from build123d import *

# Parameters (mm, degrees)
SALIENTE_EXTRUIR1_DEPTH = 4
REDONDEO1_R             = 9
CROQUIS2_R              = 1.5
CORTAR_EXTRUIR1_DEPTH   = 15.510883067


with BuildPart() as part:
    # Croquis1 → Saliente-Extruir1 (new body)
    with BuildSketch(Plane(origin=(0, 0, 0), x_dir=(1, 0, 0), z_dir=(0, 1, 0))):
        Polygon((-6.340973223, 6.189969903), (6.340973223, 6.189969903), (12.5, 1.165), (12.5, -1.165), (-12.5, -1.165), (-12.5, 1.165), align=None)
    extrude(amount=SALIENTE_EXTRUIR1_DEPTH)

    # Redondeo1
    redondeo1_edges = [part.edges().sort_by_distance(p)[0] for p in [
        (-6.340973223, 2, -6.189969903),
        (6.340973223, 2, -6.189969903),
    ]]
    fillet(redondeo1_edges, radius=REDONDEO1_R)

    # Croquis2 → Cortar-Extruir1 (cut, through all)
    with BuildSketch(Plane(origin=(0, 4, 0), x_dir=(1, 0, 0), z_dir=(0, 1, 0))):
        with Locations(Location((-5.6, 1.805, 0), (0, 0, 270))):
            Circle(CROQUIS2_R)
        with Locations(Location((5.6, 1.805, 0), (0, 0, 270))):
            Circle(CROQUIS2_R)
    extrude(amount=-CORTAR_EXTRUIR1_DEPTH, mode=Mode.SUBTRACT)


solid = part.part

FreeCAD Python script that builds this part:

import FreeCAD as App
import Part
import Sketcher
Q = App.Units.Quantity


def edges_at(feature, points):
    """Names of the edges that pass closest to the given points."""
    edges = feature.Shape.Edges
    near = lambda p: min(range(len(edges)), key=lambda i: edges[i].distToShape(Part.Vertex(*p))[0])
    return sorted({f"Edge{near(p) + 1}" for p in points})


def add_polygon(sketch, points):
    """Adds a closed chain of lines whose ends are joined by coincident constraints."""
    first, n = sketch.GeometryCount, len(points)
    for a, b in zip(points, points[1:] + points[:1]):
        sketch.addGeometry(Part.LineSegment(App.Vector(*a, 0), App.Vector(*b, 0)), False)
    for i in range(n):
        sketch.addConstraint(Sketcher.Constraint("Coincident", first + i, 2, first + (i + 1) % n, 1))

doc = App.newDocument("Part")
body = doc.addObject("PartDesign::Body", "Body")

# Sketch on XZ plane
sketch1 = body.newObject("Sketcher::SketchObject", "Sketch")
sketch1.AttachmentSupport = (doc.getObject("XZ_Plane"), [""])
sketch1.MapMode = "FlatFace"
add_polygon(sketch1, [(6.3, -6.2), (-6.3, -6.2), (-12.5, -1.2), (-12.5, 1.2), (12.5, 1.2), (12.5, -1.2)])  # lines 0-5
sketch1.addConstraint(Sketcher.Constraint("Horizontal", 0))
sketch1.addConstraint(Sketcher.Constraint("Vertical", 2))
sketch1.addConstraint(Sketcher.Constraint("Horizontal", 3))
sketch1.addConstraint(Sketcher.Constraint("Vertical", 4))
sketch1.addConstraint(Sketcher.Constraint("Symmetric", 1, 2, 3, 2, -1, 1))
sketch1.addConstraint(Sketcher.Constraint("Horizontal", 1, 2, 4, 2))
sketch1.addConstraint(Sketcher.Constraint("Equal", 1, 5))
sketch1.addConstraint(Sketcher.Constraint("DistanceX", 3, 1, 3, 2, Q("25 mm")))
sketch1.addConstraint(Sketcher.Constraint("DistanceY", 2, 1, 2, 2, Q("2.33 mm")))
sketch1.addConstraint(Sketcher.Constraint("Angle", 1, Q("140.79 deg")))
sketch1.addConstraint(Sketcher.Constraint("DistanceX", 0, 2, 0, 1, Q("12.681946 mm")))
pad1 = body.newObject("PartDesign::Pad", "Pad")
pad1.Profile = sketch1
pad1.Length = 4
pad1.Reversed = True
doc.recompute()

fillet = body.newObject("PartDesign::Fillet", "Fillet")
fillet.Base = (pad1, edges_at(pad1, [(-6.341, 2, -6.19), (6.341, 2, -6.19)]))
fillet.Radius = 9

# Sketch on XZ plane
sketch2 = body.newObject("Sketcher::SketchObject", "Sketch001")
sketch2.AttachmentSupport = (doc.getObject("XZ_Plane"), [""])
sketch2.MapMode = "FlatFace"
sketch2.AttachmentOffset = App.Placement(App.Vector(0, 0, -4), App.Rotation())
sketch2.addGeometry(Part.Circle(App.Vector(-5.6, -1.8, 0), App.Vector(0, 0, 1), 1.5), False)
sketch2.addGeometry(Part.Circle(App.Vector(5.6, -1.8, 0), App.Vector(0, 0, 1), 1.5), False)
sketch2.addConstraint(Sketcher.Constraint("Equal", 0, 1))
sketch2.addConstraint(Sketcher.Constraint("Symmetric", 0, 3, 1, 3, -2))
sketch2.addConstraint(Sketcher.Constraint("Diameter", 0, Q("3 mm")))
sketch2.addConstraint(Sketcher.Constraint("DistanceX", 0, 3, -1, 1, Q("5.6 mm")))
sketch2.addConstraint(Sketcher.Constraint("DistanceY", 0, 3, -1, 1, Q("1.805 mm")))
pocket1 = body.newObject("PartDesign::Pocket", "Pocket")
pocket1.Profile = sketch2
pocket1.Type = "ThroughAll"
pocket1.Reversed = True

doc.recompute()
